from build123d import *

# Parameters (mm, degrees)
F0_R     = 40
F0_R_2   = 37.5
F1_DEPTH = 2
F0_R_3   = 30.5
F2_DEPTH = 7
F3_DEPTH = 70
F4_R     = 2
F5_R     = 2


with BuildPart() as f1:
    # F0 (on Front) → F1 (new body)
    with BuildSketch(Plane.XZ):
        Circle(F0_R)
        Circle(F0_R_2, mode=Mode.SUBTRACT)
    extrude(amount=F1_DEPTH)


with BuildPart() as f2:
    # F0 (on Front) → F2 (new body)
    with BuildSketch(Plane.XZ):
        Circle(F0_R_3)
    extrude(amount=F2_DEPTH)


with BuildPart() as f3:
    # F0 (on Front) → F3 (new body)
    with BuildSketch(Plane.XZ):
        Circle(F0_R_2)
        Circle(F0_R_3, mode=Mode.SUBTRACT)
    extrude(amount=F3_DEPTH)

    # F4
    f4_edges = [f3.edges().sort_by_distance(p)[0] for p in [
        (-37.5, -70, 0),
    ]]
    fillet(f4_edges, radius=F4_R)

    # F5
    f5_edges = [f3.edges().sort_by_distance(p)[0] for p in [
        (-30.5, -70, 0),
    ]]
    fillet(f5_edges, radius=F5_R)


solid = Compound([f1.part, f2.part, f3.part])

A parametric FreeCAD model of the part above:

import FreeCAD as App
import Part
import Sketcher
from FreeCAD import Vector


def edges_at(feature, points):
    """Names of the edges that pass closest to the given points."""
    edges = feature.Shape.Edges
    near = lambda p: min(range(len(edges)), key=lambda i: edges[i].distToShape(Part.Vertex(*p))[0])
    return sorted({f"Edge{near(p) + 1}" for p in points})

doc = App.newDocument("Part")
params = doc.addObject("Spreadsheet::Sheet", "Params")
for row, (alias, value) in enumerate([
    ("sketch1_diameter", "80 mm"),
    ("sketch1_diameter2", "75 mm"),
    ("pad1_length", "2 mm"),
    ("sketch2_diameter", "61 mm"),
    ("pad2_length", "7 mm"),
    ("sketch3_diameter", "75 mm"),
    ("sketch3_diameter2", "61 mm"),
    ("pad3_length", "70 mm"),
    ("fillet_radius", "2 mm"),
    ("fillet2_radius", "2 mm"),
], start=1):
    params.set(f"A{row}", alias)
    params.set(f"B{row}", "=" + value)
    params.setAlias(f"B{row}", alias)

body = doc.addObject("PartDesign::Body", "Body")

sketch1 = body.newObject("Sketcher::SketchObject", "Sketch")
sketch1.AttachmentSupport = (doc.getObject("XZ_Plane"), [""])
sketch1.MapMode = "FlatFace"
sketch1.addGeometry([
    Part.Circle(Vector(0, 0, 0), Vector(0, 0, 1), 40),
    Part.Circle(Vector(0, 0, 0), Vector(0, 0, 1), 37.5),
], False)
sketch1.addConstraint([
    Sketcher.Constraint("Coincident", 0, 3, -1, 1),
    Sketcher.Constraint("Coincident", 1, 3, -1, 1),
    Sketcher.Constraint("Diameter", 0, 80.0),
    Sketcher.Constraint("Diameter", 1, 75.0),
])
sketch1.setExpression("Constraints[2]", "Params.sketch1_diameter")
sketch1.setExpression("Constraints[3]", "Params.sketch1_diameter2")
pad1 = body.newObject("PartDesign::Pad", "Pad")
pad1.Profile = sketch1
pad1.setExpression("Length", "Params.pad1_length")
body2 = doc.addObject("PartDesign::Body", "Body001")

sketch2 = body2.newObject("Sketcher::SketchObject", "Sketch001")
sketch2.AttachmentSupport = (doc.getObject("XZ_Plane001"), [""])
sketch2.MapMode = "FlatFace"
sketch2.addGeometry(Part.Circle(Vector(0, 0, 0), Vector(0, 0, 1), 30.5), False)
sketch2.addConstraint([
    Sketcher.Constraint("Coincident", 0, 3, -1, 1),
    Sketcher.Constraint("Diameter", 0, 61.0),
])
sketch2.setExpression("Constraints[1]", "Params.sketch2_diameter")
pad2 = body2.newObject("PartDesign::Pad", "Pad001")
pad2.Profile = sketch2
pad2.setExpression("Length", "Params.pad2_length")
body3 = doc.addObject("PartDesign::Body", "Body002")

sketch3 = body3.newObject("Sketcher::SketchObject", "Sketch002")
sketch3.AttachmentSupport = (doc.getObject("XZ_Plane002"), [""])
sketch3.MapMode = "FlatFace"
sketch3.addGeometry([
    Part.Circle(Vector(0, 0, 0), Vector(0, 0, 1), 37.5),
    Part.Circle(Vector(0, 0, 0), Vector(0, 0, 1), 30.5),
], False)
sketch3.addConstraint([
    Sketcher.Constraint("Coincident", 0, 3, -1, 1),
    Sketcher.Constraint("Coincident", 1, 3, -1, 1),
    Sketcher.Constraint("Diameter", 0, 75.0),
    Sketcher.Constraint("Diameter", 1, 61.0),
])
sketch3.setExpression("Constraints[2]", "Params.sketch3_diameter")
sketch3.setExpression("Constraints[3]", "Params.sketch3_diameter2")
pad3 = body3.newObject("PartDesign::Pad", "Pad002")
pad3.Profile = sketch3
pad3.setExpression("Length", "Params.pad3_length")
doc.recompute()

fillet = body3.newObject("PartDesign::Fillet", "Fillet")
fillet.Base = (pad3, edges_at(pad3, [(-37.5, -70, 0)]))
fillet.setExpression("Radius", "Params.fillet_radius")
doc.recompute()

fillet2 = body3.newObject("PartDesign::Fillet", "Fillet001")
fillet2.Base = (fillet, edges_at(fillet, [(-30.5, -70, 0)]))
fillet2.setExpression("Radius", "Params.fillet2_radius")

doc.recompute()
